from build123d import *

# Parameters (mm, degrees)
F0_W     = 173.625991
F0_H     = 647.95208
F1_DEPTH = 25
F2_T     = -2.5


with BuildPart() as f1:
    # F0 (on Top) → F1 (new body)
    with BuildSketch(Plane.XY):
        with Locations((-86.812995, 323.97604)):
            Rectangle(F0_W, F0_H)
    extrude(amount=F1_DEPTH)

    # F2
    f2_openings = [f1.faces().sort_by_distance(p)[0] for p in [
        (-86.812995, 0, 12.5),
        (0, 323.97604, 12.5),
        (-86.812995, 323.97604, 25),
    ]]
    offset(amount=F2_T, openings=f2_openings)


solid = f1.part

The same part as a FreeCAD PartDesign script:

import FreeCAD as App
import Part
import Sketcher

V = App.Vector
Q = App.Units.Quantity


def faces_at(feature, points):
    """Names of the faces that lie closest to the given points."""
    faces = feature.Shape.Faces
    near = lambda p: min(range(len(faces)), key=lambda i: faces[i].distToShape(Part.Vertex(*p))[0])
    return sorted({f"Face{near(p) + 1}" for p in points})

doc = App.newDocument("Part")
body = doc.addObject("PartDesign::Body", "Body")

# Sketch on XY plane
sketch1 = body.newObject("Sketcher::SketchObject", "Sketch")
sketch1.AttachmentSupport = (doc.getObject("XY_Plane"), [""])
sketch1.MapMode = "FlatFace"
sketch1.addGeometry([
    Part.LineSegment(V(-174, 648, 0), V(-174, 0, 0)),
    Part.LineSegment(V(-174, 0, 0), V(0, 0, 0)),
    Part.LineSegment(V(0, 0, 0), V(0, 648, 0)),
    Part.LineSegment(V(0, 648, 0), V(-174, 648, 0)),
], False)
sketch1.addConstraint([
    Sketcher.Constraint("Coincident", 0, 2, 1, 1),
    Sketcher.Constraint("Coincident", 1, 2, 2, 1),
    Sketcher.Constraint("Coincident", 2, 2, 3, 1),
    Sketcher.Constraint("Coincident", 3, 2, 0, 1),
    Sketcher.Constraint("Vertical", 0),
    Sketcher.Constraint("Horizontal", 1),
    Sketcher.Constraint("Vertical", 2),
    Sketcher.Constraint("Horizontal", 3),
    Sketcher.Constraint("Coincident", 1, 2, -1, 1),
    Sketcher.Constraint("DistanceX", 1, 1, 1, 2, Q("173.625991 mm")),
    Sketcher.Constraint("DistanceY", 0, 2, 0, 1, Q("647.95208 mm")),
])
pad1 = body.newObject("PartDesign::Pad", "Pad")
pad1.Profile = sketch1
pad1.Length = 25
doc.recompute()

thickness = body.newObject("PartDesign::Thickness", "Thickness")
thickness.Base = (pad1, faces_at(pad1, [(-86.813, 0, 12.5), (0, 323.976, 12.5), (-86.813, 323.976, 25)]))
thickness.Value = 2.5
thickness.Reversed = True
thickness.Join = "Arc"

doc.recompute()
